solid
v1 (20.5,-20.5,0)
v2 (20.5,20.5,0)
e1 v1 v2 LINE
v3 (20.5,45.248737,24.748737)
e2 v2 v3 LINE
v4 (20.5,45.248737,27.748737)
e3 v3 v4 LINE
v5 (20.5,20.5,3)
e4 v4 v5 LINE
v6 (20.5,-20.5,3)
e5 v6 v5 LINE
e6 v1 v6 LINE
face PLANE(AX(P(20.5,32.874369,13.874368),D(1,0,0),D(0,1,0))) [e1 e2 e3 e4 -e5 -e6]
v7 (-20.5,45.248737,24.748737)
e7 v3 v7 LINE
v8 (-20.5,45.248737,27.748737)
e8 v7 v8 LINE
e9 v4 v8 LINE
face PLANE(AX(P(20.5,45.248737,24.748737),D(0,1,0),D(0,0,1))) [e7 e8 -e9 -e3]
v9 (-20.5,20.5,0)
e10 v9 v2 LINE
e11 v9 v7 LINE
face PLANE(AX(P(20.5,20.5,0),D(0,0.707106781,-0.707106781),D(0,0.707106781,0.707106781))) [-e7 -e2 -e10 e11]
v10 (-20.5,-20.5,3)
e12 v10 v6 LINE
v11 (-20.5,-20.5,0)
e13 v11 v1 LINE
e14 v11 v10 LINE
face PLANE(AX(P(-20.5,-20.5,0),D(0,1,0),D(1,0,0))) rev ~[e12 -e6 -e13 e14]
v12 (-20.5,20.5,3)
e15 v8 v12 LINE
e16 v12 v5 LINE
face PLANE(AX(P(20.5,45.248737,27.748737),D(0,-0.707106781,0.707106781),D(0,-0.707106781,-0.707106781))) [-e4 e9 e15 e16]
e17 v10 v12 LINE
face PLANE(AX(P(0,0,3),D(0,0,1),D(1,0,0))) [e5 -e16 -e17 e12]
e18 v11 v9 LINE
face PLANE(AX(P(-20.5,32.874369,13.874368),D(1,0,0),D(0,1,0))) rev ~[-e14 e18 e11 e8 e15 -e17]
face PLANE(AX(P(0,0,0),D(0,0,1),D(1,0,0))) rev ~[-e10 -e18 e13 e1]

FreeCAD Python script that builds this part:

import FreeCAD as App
import Part
import Sketcher

V = App.Vector
Q = App.Units.Quantity


def add_polygon(sketch, points):
    """Adds a closed chain of lines whose ends are joined by coincident constraints."""
    first, n = sketch.GeometryCount, len(points)
    for a, b in zip(points, points[1:] + points[:1]):
        sketch.addGeometry(Part.LineSegment(App.Vector(*a, 0), App.Vector(*b, 0)), False)
    for i in range(n):
        sketch.addConstraint(Sketcher.Constraint("Coincident", first + i, 2, first + (i + 1) % n, 1))

doc = App.newDocument("Part")
body = doc.addObject("PartDesign::Body", "Body")

# Sketch on XY plane
sketch1 = doc.addObject("Sketcher::SketchObject", "Sketch")
body.addObject(sketch1)
sketch1.AttachmentSupport = (doc.XY_Plane, [""])
sketch1.MapMode = "FlatFace"
add_polygon(sketch1, [(-20, 20), (-20, -20), (20, -20), (20, 20)])  # lines 0-3
sketch1.addConstraint([
    Sketcher.Constraint("Vertical", 0),
    Sketcher.Constraint("Horizontal", 1),
    Sketcher.Constraint("Vertical", 2),
    Sketcher.Constraint("Horizontal", 3),
    Sketcher.Constraint("Symmetric", 0, 2, 2, 2, -1, 1),
    Sketcher.Constraint("Equal", 3, 0),
    Sketcher.Constraint("DistanceX", 1, 1, 1, 2, Q("41 mm")),
])
pad1 = doc.addObject("PartDesign::Pad", "Pad")
body.addObject(pad1)
pad1.Profile = sketch1
pad1.Length = 3

# Sketch on YZ plane
sketch2 = doc.addObject("Sketcher::SketchObject", "Sketch001")
body.addObject(sketch2)
sketch2.AttachmentSupport = (doc.YZ_Plane, [""])
sketch2.MapMode = "FlatFace"
sketch2.AttachmentOffset = App.Placement(V(0, 0, 20.5), App.Rotation())
add_polygon(sketch2, [(20.5, 3), (20.5, 0), (45.2, 24.7), (45.2, 27.7)])  # lines 0-3
sketch2.addConstraint([
    Sketcher.Constraint("Vertical", 0),
    Sketcher.Constraint("Vertical", 2),
    Sketcher.Constraint("PointOnObject", 0, 2, -1),
    Sketcher.Constraint("Parallel", 1, 3),
    Sketcher.Constraint("DistanceY", 0, 2, 0, 1, Q("3 mm")),
    Sketcher.Constraint("Angle", 1, Q("45 deg")),
    Sketcher.Constraint("Distance", 1, Q("35 mm")),
    Sketcher.Constraint("DistanceX", -1, 1, 0, 2, Q("20.5 mm")),
])
pad2 = doc.addObject("PartDesign::Pad", "Pad001")
body.addObject(pad2)
pad2.Profile = sketch2
pad2.Length = 41
pad2.Reversed = True

doc.recompute()
